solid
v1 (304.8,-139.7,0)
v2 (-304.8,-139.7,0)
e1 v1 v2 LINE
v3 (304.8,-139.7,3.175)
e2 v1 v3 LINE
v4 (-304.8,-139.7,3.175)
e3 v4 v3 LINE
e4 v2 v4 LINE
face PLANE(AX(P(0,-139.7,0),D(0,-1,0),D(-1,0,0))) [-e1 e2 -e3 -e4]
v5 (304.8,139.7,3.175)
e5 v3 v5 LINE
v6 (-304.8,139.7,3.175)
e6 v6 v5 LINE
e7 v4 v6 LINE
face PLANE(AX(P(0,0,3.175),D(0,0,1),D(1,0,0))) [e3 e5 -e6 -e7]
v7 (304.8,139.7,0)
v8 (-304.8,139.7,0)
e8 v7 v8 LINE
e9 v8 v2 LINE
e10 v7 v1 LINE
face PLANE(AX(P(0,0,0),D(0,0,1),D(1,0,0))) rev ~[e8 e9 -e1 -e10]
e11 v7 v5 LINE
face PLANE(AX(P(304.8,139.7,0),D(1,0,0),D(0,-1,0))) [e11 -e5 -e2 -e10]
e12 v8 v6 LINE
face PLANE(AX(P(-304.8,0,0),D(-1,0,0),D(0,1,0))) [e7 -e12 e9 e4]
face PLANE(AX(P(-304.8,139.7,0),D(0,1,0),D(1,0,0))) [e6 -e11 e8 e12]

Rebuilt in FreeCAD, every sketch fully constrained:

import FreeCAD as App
import Part
import Sketcher
Q = App.Units.Quantity

doc = App.newDocument("Part")
body = doc.addObject("PartDesign::Body", "Body")

# Sketch on XY plane
sketch1 = body.newObject("Sketcher::SketchObject", "Sketch")
sketch1.AttachmentSupport = (doc.getObject("XY_Plane"), [""])
sketch1.MapMode = "FlatFace"
sketch1.addGeometry([
    Part.LineSegment(App.Vector(-304.8, 139.7, 0), App.Vector(-304.8, -139.7, 0)),
    Part.LineSegment(App.Vector(-304.8, -139.7, 0), App.Vector(304.8, -139.7, 0)),
    Part.LineSegment(App.Vector(304.8, -139.7, 0), App.Vector(304.8, 139.7, 0)),
    Part.LineSegment(App.Vector(304.8, 139.7, 0), App.Vector(-304.8, 139.7, 0)),
], False)
sketch1.addConstraint([
    Sketcher.Constraint("Coincident", 0, 2, 1, 1),
    Sketcher.Constraint("Coincident", 1, 2, 2, 1),
    Sketcher.Constraint("Coincident", 2, 2, 3, 1),
    Sketcher.Constraint("Coincident", 3, 2, 0, 1),
    Sketcher.Constraint("Vertical", 0),
    Sketcher.Constraint("Horizontal", 1),
    Sketcher.Constraint("Vertical", 2),
    Sketcher.Constraint("Horizontal", 3),
    Sketcher.Constraint("Symmetric", 0, 2, 2, 2, -1, 1),
    Sketcher.Constraint("DistanceX", 1, 1, 1, 2, Q("24 in")),
    Sketcher.Constraint("DistanceY", 0, 2, 0, 1, Q("11 in")),
])
pad1 = body.newObject("PartDesign::Pad", "Pad")
pad1.Profile = sketch1
pad1.Length = Q("0.125 in")

doc.recompute()
